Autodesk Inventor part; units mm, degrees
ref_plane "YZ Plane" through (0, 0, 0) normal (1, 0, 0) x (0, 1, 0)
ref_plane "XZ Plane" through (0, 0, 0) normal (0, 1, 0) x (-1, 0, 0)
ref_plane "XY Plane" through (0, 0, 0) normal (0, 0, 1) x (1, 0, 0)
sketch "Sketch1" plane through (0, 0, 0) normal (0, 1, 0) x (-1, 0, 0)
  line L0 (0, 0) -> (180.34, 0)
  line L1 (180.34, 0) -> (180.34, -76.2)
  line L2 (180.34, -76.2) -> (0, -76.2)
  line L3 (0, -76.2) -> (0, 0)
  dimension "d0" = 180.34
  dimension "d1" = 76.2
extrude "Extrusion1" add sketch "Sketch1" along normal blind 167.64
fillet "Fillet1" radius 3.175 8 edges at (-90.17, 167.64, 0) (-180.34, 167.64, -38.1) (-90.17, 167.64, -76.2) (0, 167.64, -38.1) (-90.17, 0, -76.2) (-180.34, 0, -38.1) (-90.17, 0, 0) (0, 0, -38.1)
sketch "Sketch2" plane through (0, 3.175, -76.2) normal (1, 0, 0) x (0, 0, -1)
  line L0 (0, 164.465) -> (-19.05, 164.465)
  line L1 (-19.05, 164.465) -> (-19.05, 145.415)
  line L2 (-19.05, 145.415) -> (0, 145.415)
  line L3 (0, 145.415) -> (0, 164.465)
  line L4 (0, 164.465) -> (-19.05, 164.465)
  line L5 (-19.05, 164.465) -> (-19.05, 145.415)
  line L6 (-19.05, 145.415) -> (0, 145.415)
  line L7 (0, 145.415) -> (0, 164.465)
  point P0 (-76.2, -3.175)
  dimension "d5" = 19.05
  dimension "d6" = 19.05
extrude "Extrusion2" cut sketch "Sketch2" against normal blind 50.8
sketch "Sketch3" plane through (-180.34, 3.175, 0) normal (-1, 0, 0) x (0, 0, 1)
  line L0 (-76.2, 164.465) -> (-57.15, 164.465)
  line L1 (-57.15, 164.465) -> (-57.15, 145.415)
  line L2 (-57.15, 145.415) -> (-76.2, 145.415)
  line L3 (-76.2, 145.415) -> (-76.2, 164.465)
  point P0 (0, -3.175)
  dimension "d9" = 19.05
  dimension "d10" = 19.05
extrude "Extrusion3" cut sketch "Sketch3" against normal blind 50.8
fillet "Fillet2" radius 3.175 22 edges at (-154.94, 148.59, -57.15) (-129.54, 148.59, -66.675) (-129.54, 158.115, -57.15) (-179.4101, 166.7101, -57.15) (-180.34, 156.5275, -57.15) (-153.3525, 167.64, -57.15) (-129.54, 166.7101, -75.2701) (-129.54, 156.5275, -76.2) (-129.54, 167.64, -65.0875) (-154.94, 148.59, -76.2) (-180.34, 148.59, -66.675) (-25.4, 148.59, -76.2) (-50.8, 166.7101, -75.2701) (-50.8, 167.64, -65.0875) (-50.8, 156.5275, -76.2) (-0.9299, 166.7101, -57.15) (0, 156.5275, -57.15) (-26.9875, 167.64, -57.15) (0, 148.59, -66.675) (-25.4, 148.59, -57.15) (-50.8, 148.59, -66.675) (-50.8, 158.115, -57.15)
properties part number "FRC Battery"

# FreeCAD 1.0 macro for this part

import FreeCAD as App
import Part
import Sketcher

V = App.Vector
Q = App.Units.Quantity


def edges_at(feature, points):
    """Names of the edges that pass closest to the given points."""
    edges = feature.Shape.Edges
    near = lambda p: min(range(len(edges)), key=lambda i: edges[i].distToShape(Part.Vertex(*p))[0])
    return sorted({f"Edge{near(p) + 1}" for p in points})


def add_polygon(sketch, points):
    """Adds a closed chain of lines whose ends are joined by coincident constraints."""
    first, n = sketch.GeometryCount, len(points)
    for a, b in zip(points, points[1:] + points[:1]):
        sketch.addGeometry(Part.LineSegment(App.Vector(*a, 0), App.Vector(*b, 0)), False)
    for i in range(n):
        sketch.addConstraint(Sketcher.Constraint("Coincident", first + i, 2, first + (i + 1) % n, 1))

doc = App.newDocument("Part")
body = doc.addObject("PartDesign::Body", "Body")

sketch1 = body.newObject("Sketcher::SketchObject", "Sketch")
sketch1.AttachmentSupport = (doc.getObject("XZ_Plane"), [""])
sketch1.MapMode = "FlatFace"
add_polygon(sketch1, [(-180.34, 0), (0, 0), (0, -76.2), (-180.34, -76.2)])
sketch1.addConstraint([
    Sketcher.Constraint("Horizontal", 0),
    Sketcher.Constraint("Vertical", 1),
    Sketcher.Constraint("Horizontal", 2),
    Sketcher.Constraint("Vertical", 3),
    Sketcher.Constraint("Coincident", 0, 2, -1, 1),
    Sketcher.Constraint("DistanceY", 1, 2, 1, 1, Q("3 in")),
    Sketcher.Constraint("DistanceX", 0, 1, 0, 2, Q("7.1 in")),
])
pad1 = body.newObject("PartDesign::Pad", "Pad")
pad1.Profile = sketch1
pad1.Length = Q("6.6 in")
pad1.Reversed = True
doc.recompute()

fillet = body.newObject("PartDesign::Fillet", "Fillet")
fillet.Base = (pad1, edges_at(pad1, [
    (-90.17, 167.64, 0),
    (-180.34, 167.64, -38.1),
    (-90.17, 167.64, -76.2),
    (0, 167.64, -38.1),
    (-90.17, 0, -76.2),
    (-180.34, 0, -38.1),
    (-90.17, 0, 0),
    (0, 0, -38.1),
]))
fillet.Radius = Q("0.125 in")

sketch2 = body.newObject("Sketcher::SketchObject", "Sketch001")
sketch2.AttachmentSupport = (doc.getObject("YZ_Plane"), [""])
sketch2.MapMode = "FlatFace"
add_polygon(sketch2, [(148.59, -76.2), (167.64, -76.2), (167.64, -57.15), (148.59, -57.15)])
sketch2.addConstraint([
    Sketcher.Constraint("Horizontal", 0),
    Sketcher.Constraint("Vertical", 1),
    Sketcher.Constraint("Horizontal", 2),
    Sketcher.Constraint("Vertical", 3),
    Sketcher.Constraint("Equal", 2, 1),
    Sketcher.Constraint("DistanceX", 0, 1, 0, 2, Q("0.75 in")),
    Sketcher.Constraint("DistanceY", 0, 2, -1, 1, Q("3 in")),
    Sketcher.Constraint("DistanceX", -1, 1, 0, 2, Q("6.6 in")),
])
pocket1 = body.newObject("PartDesign::Pocket", "Pocket")
pocket1.Profile = sketch2
pocket1.Length = Q("2 in")

sketch3 = body.newObject("Sketcher::SketchObject", "Sketch002")
sketch3.AttachmentSupport = (doc.getObject("YZ_Plane"), [""])
sketch3.MapMode = "FlatFace"
sketch3.AttachmentOffset = App.Placement(V(0, 0, -7.1 * 25.4), App.Rotation())
add_polygon(sketch3, [(167.64, -57.15), (167.64, -76.2), (148.59, -76.2), (148.59, -57.15)])
sketch3.addConstraint([
    Sketcher.Constraint("Vertical", 0),
    Sketcher.Constraint("Horizontal", 1),
    Sketcher.Constraint("Vertical", 2),
    Sketcher.Constraint("Horizontal", 3),
    Sketcher.Constraint("Equal", 3, 0),
    Sketcher.Constraint("DistanceX", 1, 2, 1, 1, Q("0.75 in")),
    Sketcher.Constraint("DistanceY", 0, 2, -1, 1, Q("3 in")),
    Sketcher.Constraint("DistanceX", -1, 1, 0, 2, Q("6.6 in")),
])
pocket2 = body.newObject("PartDesign::Pocket", "Pocket001")
pocket2.Profile = sketch3
pocket2.Length = Q("2 in")
pocket2.Reversed = True
doc.recompute()

fillet2 = body.newObject("PartDesign::Fillet", "Fillet001")
fillet2.Base = (pocket2, edges_at(pocket2, [
    (-154.94, 148.59, -57.15),
    (-129.54, 148.59, -66.675),
    (-129.54, 158.115, -57.15),
    (-179.41, 166.71, -57.15),
    (-180.34, 156.528, -57.15),
    (-153.352, 167.64, -57.15),
    (-129.54, 166.71, -75.27),
    (-129.54, 156.528, -76.2),
    (-129.54, 167.64, -65.088),
    (-154.94, 148.59, -76.2),
    (-180.34, 148.59, -66.675),
    (-25.4, 148.59, -76.2),
    (-50.8, 166.71, -75.27),
    (-50.8, 167.64, -65.088),
    (-50.8, 156.528, -76.2),
    (-0.93, 166.71, -57.15),
    (0, 156.528, -57.15),
    (-26.988, 167.64, -57.15),
    (0, 148.59, -66.675),
    (-25.4, 148.59, -57.15),
    (-50.8, 148.59, -66.675),
    (-50.8, 158.115, -57.15),
]))
fillet2.Radius = Q("0.125 in")

doc.recompute()
